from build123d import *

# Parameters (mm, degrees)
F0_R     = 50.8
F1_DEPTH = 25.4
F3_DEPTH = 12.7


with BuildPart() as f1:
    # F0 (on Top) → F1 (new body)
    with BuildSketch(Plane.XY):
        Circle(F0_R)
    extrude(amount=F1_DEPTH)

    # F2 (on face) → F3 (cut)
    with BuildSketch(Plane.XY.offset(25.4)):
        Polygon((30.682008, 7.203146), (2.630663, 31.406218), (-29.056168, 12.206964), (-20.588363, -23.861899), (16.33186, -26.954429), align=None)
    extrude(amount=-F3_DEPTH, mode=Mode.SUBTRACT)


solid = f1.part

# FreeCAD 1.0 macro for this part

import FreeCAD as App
import Part
import Sketcher
Q = App.Units.Quantity


def add_polygon(sketch, points):
    """Adds a closed chain of lines whose ends are joined by coincident constraints."""
    first, n = sketch.GeometryCount, len(points)
    for a, b in zip(points, points[1:] + points[:1]):
        sketch.addGeometry(Part.LineSegment(App.Vector(*a, 0), App.Vector(*b, 0)), False)
    for i in range(n):
        sketch.addConstraint(Sketcher.Constraint("Coincident", first + i, 2, first + (i + 1) % n, 1))

doc = App.newDocument("Part")
params = doc.addObject("Spreadsheet::Sheet", "Params")
for row, (alias, value) in enumerate([
    ("sketch1_diameter", "4 in"),
    ("pad1_length", "1 in"),
    ("pocket1_length", "0.5 in"),
], start=1):
    params.set(f"A{row}", alias)
    params.set(f"B{row}", "=" + value)
    params.setAlias(f"B{row}", alias)

body = doc.addObject("PartDesign::Body", "Body")

# Sketch on XY plane
sketch1 = doc.addObject("Sketcher::SketchObject", "Sketch")
body.addObject(sketch1)
sketch1.AttachmentSupport = (doc.XY_Plane, [""])
sketch1.MapMode = "FlatFace"
sketch1.addGeometry(Part.Circle(App.Vector(0, 0, 0), App.Vector(0, 0, 1), 51), False)
sketch1.addConstraint(Sketcher.Constraint("Coincident", 0, 3, -1, 1))
sketch1.addConstraint(Sketcher.Constraint("Diameter", 0, Q("4 in")))
sketch1.setExpression("Constraints[1]", "Params.sketch1_diameter")
pad1 = doc.addObject("PartDesign::Pad", "Pad")
body.addObject(pad1)
pad1.Profile = sketch1
pad1.setExpression("Length", "Params.pad1_length")

# Sketch on XY plane
sketch2 = doc.addObject("Sketcher::SketchObject", "Sketch001")
body.addObject(sketch2)
sketch2.AttachmentSupport = (doc.XY_Plane, [""])
sketch2.MapMode = "FlatFace"
sketch2.AttachmentOffset = App.Placement(App.Vector(0, 0, 1 * 25.4), App.Rotation())
add_polygon(sketch2, [(31, 7), (3, 31), (-29, 12), (-21, -24), (16, -27)])  # lines 0-4
sketch2.addConstraint(Sketcher.Constraint("Equal", 0, 1))
sketch2.addConstraint(Sketcher.Constraint("Equal", 1, 2))
sketch2.addConstraint(Sketcher.Constraint("Equal", 2, 3))
sketch2.addConstraint(Sketcher.Constraint("Equal", 3, 4))
sketch2.addConstraint(Sketcher.Constraint("DistanceY", 2, 2, -1, 1, Q("23.861899 mm")))
sketch2.addConstraint(Sketcher.Constraint("DistanceX", -1, 1, 3, 2, Q("16.33186 mm")))
sketch2.addConstraint(Sketcher.Constraint("DistanceY", 3, 2, -1, 1, Q("26.954429 mm")))
sketch2.addConstraint(Sketcher.Constraint("DistanceX", -1, 1, 4, 2, Q("30.682008 mm")))
sketch2.addConstraint(Sketcher.Constraint("DistanceX", 1, 2, 0, 2, Q("31.686831 mm")))
sketch2.addConstraint(Sketcher.Constraint("DistanceY", 4, 2, 0, 2, Q("24.203072 mm")))
pocket1 = doc.addObject("PartDesign::Pocket", "Pocket")
body.addObject(pocket1)
pocket1.Profile = sketch2
pocket1.setExpression("Length", "Params.pocket1_length")

doc.recompute()
